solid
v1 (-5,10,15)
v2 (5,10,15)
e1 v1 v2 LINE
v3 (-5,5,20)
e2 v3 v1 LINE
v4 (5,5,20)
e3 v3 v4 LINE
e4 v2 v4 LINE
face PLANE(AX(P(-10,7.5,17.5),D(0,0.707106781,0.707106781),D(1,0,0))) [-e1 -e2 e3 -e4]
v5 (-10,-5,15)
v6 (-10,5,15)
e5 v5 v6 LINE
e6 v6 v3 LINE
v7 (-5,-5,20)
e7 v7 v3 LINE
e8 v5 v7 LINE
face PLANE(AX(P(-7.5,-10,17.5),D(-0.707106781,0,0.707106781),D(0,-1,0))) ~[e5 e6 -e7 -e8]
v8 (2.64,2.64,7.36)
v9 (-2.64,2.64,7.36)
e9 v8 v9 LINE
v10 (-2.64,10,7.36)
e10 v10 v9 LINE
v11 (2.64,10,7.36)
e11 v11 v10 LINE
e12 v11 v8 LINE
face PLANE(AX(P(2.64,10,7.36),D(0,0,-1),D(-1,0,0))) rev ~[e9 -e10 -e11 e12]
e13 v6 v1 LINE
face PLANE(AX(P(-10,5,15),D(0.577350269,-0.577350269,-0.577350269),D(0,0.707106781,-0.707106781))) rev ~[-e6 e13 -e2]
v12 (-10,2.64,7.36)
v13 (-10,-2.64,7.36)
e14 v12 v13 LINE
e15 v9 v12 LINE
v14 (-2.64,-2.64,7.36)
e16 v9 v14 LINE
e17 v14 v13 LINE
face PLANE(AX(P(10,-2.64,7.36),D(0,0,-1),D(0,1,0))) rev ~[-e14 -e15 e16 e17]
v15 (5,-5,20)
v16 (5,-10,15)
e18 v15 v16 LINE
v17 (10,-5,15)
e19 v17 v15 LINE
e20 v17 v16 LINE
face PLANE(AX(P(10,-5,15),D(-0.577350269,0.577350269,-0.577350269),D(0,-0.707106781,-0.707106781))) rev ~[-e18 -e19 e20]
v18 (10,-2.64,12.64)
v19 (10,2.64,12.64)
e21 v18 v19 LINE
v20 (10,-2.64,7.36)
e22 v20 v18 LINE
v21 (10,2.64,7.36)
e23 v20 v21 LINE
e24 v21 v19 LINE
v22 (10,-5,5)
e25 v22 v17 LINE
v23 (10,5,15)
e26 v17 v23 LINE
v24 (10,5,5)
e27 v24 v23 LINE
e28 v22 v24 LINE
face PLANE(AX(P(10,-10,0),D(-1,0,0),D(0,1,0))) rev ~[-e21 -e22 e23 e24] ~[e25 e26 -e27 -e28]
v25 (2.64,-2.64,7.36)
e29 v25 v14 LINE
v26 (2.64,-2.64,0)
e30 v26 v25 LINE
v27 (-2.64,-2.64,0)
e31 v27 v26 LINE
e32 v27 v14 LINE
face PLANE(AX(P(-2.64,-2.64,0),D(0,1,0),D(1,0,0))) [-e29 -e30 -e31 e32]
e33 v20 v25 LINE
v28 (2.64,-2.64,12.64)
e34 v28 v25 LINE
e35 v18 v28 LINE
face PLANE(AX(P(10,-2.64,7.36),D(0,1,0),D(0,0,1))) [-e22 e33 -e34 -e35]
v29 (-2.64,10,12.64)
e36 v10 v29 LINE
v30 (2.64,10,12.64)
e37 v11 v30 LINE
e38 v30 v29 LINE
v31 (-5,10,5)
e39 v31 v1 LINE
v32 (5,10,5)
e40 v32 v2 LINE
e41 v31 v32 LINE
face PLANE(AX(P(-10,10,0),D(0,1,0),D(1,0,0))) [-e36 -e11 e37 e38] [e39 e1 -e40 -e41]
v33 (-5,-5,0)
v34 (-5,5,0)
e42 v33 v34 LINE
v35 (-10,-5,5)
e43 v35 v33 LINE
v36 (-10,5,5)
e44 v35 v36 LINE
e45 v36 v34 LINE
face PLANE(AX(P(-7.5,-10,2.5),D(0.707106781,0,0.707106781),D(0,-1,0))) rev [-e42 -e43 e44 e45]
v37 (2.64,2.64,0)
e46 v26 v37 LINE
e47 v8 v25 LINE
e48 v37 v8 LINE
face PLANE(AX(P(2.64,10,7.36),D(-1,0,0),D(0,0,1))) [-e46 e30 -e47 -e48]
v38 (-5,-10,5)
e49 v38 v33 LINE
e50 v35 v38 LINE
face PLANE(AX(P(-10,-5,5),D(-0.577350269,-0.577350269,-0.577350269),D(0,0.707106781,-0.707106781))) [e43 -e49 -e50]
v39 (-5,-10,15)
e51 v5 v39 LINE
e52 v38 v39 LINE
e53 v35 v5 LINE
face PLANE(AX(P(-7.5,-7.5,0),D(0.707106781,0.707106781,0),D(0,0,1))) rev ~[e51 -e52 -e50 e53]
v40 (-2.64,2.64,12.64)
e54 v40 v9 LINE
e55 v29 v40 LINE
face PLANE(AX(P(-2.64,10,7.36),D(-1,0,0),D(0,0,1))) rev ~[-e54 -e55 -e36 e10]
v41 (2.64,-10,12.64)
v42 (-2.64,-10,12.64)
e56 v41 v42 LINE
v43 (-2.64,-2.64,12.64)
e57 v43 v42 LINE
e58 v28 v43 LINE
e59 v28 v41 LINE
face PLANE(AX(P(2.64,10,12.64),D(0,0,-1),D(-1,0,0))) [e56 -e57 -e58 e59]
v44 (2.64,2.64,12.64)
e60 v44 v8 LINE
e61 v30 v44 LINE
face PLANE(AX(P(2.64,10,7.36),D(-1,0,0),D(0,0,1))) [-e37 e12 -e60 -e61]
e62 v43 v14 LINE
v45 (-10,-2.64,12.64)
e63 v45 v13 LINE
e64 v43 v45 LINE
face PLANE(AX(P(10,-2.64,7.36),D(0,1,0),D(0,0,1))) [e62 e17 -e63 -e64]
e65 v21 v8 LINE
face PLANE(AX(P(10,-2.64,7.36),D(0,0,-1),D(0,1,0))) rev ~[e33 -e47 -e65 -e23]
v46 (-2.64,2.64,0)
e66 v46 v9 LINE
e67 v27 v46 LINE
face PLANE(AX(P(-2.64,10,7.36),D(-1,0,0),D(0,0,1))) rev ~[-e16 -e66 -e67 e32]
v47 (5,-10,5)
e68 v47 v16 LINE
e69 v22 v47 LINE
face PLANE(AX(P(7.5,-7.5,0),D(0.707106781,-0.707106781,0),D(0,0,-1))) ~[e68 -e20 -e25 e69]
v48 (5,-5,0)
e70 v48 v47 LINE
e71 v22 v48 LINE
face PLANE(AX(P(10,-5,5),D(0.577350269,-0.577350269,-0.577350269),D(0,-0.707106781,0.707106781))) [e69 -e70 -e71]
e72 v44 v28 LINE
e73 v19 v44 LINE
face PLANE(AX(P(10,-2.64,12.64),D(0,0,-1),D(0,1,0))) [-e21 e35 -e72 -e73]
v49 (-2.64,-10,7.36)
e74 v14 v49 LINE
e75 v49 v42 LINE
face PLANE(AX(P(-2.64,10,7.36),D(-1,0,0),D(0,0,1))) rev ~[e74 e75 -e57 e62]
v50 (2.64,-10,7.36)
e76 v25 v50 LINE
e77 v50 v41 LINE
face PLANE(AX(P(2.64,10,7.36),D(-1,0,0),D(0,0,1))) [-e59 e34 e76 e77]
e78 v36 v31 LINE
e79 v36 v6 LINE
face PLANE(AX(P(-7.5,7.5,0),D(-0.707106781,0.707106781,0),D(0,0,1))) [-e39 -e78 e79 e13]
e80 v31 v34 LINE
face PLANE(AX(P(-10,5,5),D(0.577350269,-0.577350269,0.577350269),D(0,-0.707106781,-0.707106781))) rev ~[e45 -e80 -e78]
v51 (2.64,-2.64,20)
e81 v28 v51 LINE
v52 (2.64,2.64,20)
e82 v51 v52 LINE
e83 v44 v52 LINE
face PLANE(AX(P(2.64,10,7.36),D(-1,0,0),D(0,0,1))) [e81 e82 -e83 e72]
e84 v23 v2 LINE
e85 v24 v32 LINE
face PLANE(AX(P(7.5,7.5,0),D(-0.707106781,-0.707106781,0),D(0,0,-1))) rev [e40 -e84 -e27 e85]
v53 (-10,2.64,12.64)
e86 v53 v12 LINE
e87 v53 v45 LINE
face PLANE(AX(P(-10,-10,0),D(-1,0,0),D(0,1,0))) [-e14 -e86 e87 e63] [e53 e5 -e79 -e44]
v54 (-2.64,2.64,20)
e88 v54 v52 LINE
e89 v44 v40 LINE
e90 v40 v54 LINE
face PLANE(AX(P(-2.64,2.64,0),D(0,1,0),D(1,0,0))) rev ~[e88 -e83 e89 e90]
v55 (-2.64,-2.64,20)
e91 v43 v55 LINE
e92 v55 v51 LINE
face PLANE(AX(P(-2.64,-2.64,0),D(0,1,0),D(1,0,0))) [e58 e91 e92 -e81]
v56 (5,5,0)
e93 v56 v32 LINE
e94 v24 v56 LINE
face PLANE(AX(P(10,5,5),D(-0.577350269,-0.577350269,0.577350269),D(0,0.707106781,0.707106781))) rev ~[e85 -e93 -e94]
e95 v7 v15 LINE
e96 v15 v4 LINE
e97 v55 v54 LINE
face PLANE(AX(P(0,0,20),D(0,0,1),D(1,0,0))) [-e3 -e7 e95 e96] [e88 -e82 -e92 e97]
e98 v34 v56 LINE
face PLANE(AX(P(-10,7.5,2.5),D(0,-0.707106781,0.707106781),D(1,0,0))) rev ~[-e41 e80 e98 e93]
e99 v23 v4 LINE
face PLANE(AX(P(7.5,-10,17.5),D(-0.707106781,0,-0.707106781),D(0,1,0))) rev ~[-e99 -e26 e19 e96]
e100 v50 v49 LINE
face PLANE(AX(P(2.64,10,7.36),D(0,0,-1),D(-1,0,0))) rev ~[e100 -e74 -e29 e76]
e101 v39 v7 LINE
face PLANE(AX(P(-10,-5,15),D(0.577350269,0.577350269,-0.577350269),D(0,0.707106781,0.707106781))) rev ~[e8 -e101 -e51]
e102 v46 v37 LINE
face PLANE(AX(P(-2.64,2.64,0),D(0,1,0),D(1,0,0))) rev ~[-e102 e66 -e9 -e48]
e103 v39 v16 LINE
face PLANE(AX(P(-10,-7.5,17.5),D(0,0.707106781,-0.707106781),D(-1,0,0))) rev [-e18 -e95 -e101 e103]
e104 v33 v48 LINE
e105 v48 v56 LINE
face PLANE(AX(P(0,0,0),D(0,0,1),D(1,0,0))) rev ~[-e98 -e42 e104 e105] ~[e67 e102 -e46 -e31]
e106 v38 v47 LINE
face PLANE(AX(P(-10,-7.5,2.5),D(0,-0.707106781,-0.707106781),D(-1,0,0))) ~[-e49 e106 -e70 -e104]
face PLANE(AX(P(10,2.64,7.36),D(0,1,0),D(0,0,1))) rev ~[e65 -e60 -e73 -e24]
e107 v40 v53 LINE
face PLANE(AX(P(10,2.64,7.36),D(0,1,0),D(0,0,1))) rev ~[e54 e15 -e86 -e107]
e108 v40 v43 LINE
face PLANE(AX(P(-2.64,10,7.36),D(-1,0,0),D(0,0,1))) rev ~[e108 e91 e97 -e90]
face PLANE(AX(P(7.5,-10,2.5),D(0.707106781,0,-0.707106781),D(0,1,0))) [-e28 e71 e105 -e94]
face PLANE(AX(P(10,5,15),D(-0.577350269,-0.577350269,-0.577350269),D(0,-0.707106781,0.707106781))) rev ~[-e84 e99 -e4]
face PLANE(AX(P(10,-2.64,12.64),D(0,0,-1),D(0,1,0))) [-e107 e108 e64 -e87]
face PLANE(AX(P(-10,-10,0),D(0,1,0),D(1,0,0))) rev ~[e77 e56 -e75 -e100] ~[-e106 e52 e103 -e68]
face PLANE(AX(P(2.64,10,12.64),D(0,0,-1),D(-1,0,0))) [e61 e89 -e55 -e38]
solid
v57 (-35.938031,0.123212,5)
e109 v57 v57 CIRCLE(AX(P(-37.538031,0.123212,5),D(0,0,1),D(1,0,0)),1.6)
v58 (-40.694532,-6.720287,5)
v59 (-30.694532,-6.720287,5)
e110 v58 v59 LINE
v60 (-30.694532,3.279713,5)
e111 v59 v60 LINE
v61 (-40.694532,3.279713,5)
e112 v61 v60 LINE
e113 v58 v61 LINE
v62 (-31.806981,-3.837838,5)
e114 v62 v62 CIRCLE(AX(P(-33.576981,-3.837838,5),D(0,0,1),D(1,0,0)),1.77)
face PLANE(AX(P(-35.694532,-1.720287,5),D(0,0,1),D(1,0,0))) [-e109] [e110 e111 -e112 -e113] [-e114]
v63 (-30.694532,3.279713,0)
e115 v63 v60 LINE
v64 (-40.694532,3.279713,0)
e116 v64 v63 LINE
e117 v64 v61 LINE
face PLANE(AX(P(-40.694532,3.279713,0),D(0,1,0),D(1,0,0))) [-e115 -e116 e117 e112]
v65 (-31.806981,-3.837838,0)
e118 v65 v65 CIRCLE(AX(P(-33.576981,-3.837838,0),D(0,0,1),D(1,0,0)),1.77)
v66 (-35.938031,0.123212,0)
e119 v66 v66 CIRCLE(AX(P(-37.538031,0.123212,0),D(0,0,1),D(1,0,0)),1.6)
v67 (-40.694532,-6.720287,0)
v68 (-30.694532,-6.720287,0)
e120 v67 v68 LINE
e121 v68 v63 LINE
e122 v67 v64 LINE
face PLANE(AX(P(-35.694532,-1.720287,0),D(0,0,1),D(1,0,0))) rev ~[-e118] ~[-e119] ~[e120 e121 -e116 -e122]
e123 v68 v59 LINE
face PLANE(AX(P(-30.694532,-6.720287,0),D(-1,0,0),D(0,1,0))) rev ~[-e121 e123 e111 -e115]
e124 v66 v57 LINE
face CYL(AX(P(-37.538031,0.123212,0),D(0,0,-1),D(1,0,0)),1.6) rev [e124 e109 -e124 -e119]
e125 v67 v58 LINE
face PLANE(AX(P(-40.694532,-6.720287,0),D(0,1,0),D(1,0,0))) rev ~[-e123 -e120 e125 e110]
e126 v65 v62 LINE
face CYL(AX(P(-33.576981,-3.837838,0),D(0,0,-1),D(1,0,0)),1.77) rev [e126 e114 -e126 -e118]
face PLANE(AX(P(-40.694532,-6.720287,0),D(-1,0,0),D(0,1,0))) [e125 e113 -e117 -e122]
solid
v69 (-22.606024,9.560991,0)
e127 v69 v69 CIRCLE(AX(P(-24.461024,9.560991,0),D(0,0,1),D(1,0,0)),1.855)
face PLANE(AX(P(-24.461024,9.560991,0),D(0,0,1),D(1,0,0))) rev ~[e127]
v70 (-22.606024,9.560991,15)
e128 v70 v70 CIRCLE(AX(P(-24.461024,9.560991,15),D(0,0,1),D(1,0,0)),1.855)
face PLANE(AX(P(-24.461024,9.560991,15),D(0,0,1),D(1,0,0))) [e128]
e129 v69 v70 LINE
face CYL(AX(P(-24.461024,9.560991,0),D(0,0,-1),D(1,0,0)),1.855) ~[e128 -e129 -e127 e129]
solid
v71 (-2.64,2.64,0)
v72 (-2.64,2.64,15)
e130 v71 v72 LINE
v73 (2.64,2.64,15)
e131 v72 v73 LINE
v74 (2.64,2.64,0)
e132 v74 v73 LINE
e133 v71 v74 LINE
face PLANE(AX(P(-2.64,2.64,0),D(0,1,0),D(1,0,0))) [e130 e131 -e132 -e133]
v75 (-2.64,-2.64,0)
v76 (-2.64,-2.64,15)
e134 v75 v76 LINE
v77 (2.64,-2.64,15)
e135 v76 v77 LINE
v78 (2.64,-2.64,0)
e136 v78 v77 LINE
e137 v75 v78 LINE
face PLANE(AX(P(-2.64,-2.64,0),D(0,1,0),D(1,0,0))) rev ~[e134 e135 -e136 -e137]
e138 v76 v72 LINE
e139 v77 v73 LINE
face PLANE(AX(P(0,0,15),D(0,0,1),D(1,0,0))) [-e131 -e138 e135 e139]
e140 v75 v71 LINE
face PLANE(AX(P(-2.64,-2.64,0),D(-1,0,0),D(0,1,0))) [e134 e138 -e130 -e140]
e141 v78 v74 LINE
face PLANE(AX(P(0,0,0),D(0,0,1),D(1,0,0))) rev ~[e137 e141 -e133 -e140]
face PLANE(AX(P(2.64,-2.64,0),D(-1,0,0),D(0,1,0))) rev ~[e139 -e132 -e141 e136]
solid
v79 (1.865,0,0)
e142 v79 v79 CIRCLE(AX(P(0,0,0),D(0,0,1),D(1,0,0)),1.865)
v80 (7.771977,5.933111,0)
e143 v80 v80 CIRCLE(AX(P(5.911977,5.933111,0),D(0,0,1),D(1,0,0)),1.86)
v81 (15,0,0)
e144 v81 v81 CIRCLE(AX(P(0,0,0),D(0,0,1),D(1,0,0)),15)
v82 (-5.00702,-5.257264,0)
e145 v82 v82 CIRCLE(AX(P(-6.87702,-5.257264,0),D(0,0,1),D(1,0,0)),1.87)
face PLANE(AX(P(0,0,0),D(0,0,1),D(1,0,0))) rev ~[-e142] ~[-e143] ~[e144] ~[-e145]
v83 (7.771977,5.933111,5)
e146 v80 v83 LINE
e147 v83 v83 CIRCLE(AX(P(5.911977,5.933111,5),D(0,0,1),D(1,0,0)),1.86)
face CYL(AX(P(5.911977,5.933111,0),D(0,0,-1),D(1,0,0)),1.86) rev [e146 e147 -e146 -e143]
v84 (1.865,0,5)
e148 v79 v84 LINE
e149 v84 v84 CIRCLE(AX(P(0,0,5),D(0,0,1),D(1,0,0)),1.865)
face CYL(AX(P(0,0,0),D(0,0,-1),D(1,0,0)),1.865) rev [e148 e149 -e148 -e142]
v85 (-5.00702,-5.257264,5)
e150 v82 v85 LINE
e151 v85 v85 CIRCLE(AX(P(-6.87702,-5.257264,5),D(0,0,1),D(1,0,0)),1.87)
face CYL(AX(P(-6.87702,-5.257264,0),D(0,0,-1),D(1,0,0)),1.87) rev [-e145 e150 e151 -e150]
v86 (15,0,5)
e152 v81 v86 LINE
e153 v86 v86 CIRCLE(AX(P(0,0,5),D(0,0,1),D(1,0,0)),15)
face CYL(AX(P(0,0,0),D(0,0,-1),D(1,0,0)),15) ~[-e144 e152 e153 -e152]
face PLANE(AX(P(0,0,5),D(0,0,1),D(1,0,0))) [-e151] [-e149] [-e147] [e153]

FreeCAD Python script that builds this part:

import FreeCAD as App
import Part
import Sketcher


def edges_at(feature, points):
    """Names of the edges that pass closest to the given points."""
    edges = feature.Shape.Edges
    near = lambda p: min(range(len(edges)), key=lambda i: edges[i].distToShape(Part.Vertex(*p))[0])
    return sorted({f"Edge{near(p) + 1}" for p in points})


def add_polygon(sketch, points):
    """Adds a closed chain of lines whose ends are joined by coincident constraints."""
    first, n = sketch.GeometryCount, len(points)
    for a, b in zip(points, points[1:] + points[:1]):
        sketch.addGeometry(Part.LineSegment(App.Vector(*a, 0), App.Vector(*b, 0)), False)
    for i in range(n):
        sketch.addConstraint(Sketcher.Constraint("Coincident", first + i, 2, first + (i + 1) % n, 1))

doc = App.newDocument("Part")
body = doc.addObject("PartDesign::Body", "Body")

# Sketch on XY plane
sketch1 = doc.addObject("Sketcher::SketchObject", "Sketch")
body.addObject(sketch1)
sketch1.AttachmentSupport = (doc.XY_Plane, [""])
sketch1.MapMode = "FlatFace"
sketch1.addGeometry(Part.Circle(App.Vector(0, 0, 0), App.Vector(0, 0, 1), 15), False)
sketch1.addGeometry(Part.Circle(App.Vector(-6.87702, -5.257264, 0), App.Vector(0, 0, 1), 1.87), False)
sketch1.addGeometry(Part.Circle(App.Vector(0, 0, 0), App.Vector(0, 0, 1), 1.865), False)
sketch1.addGeometry(Part.Circle(App.Vector(5.911977, 5.933111, 0), App.Vector(0, 0, 1), 1.86), False)
sketch1.addConstraint(Sketcher.Constraint("Coincident", 0, 3, -1, 1))
sketch1.addConstraint(Sketcher.Constraint("Coincident", 2, 3, -1, 1))
sketch1.addConstraint(Sketcher.Constraint("Diameter", 0, 30.0))
sketch1.addConstraint(Sketcher.Constraint("Diameter", 1, 3.74))
sketch1.addConstraint(Sketcher.Constraint("Diameter", 2, 3.73))
sketch1.addConstraint(Sketcher.Constraint("Diameter", 3, 3.72))
sketch1.addConstraint(Sketcher.Constraint("DistanceX", 1, 3, -1, 1, 6.87702))
sketch1.addConstraint(Sketcher.Constraint("DistanceY", -1, 1, 3, 3, 5.933111))
sketch1.addConstraint(Sketcher.Constraint("DistanceY", 1, 3, -1, 1, 5.257264))
sketch1.addConstraint(Sketcher.Constraint("DistanceX", -1, 1, 3, 3, 5.911977))
pad1 = doc.addObject("PartDesign::Pad", "Pad")
body.addObject(pad1)
pad1.Profile = sketch1
pad1.Length = 5
body2 = doc.addObject("PartDesign::Body", "Body001")

# Sketch on XY plane
sketch2 = doc.addObject("Sketcher::SketchObject", "Sketch001")
body2.addObject(sketch2)
sketch2.AttachmentSupport = (doc.getObject("XY_Plane001"), [""])
sketch2.MapMode = "FlatFace"
sketch2.addGeometry(Part.Circle(App.Vector(-24.461024, 9.560991, 0), App.Vector(0, 0, 1), 1.855), False)
sketch2.addConstraint(Sketcher.Constraint("Diameter", 0, 3.71))
sketch2.addConstraint(Sketcher.Constraint("DistanceY", -1, 1, 0, 3, 9.560991))
sketch2.addConstraint(Sketcher.Constraint("DistanceX", 0, 3, -1, 1, 24.461024))
pad2 = doc.addObject("PartDesign::Pad", "Pad001")
body2.addObject(pad2)
pad2.Profile = sketch2
pad2.Length = 15
body3 = doc.addObject("PartDesign::Body", "Body002")

# Sketch on XY plane
sketch3 = doc.addObject("Sketcher::SketchObject", "Sketch002")
body3.addObject(sketch3)
sketch3.AttachmentSupport = (doc.getObject("XY_Plane002"), [""])
sketch3.MapMode = "FlatFace"
add_polygon(sketch3, [(-40.694532, 3.279713), (-40.694532, -6.720287), (-30.694532, -6.720287), (-30.694532, 3.279713)])  # lines 0-3
sketch3.addGeometry(Part.Circle(App.Vector(-33.576981, -3.837838, 0), App.Vector(0, 0, 1), 1.77), False)  # 4
sketch3.addGeometry(Part.Circle(App.Vector(-37.538031, 0.123212, 0), App.Vector(0, 0, 1), 1.6), False)  # 5
sketch3.addConstraint(Sketcher.Constraint("Vertical", 0))
sketch3.addConstraint(Sketcher.Constraint("Horizontal", 1))
sketch3.addConstraint(Sketcher.Constraint("Vertical", 2))
sketch3.addConstraint(Sketcher.Constraint("Horizontal", 3))
sketch3.addConstraint(Sketcher.Constraint("Equal", 3, 0))
sketch3.addConstraint(Sketcher.Constraint("Diameter", 5, 3.2))
sketch3.addConstraint(Sketcher.Constraint("Diameter", 4, 3.54))
sketch3.addConstraint(Sketcher.Constraint("DistanceX", 1, 1, 1, 2, 10.0))
sketch3.addConstraint(Sketcher.Constraint("DistanceX", 0, 2, 5, 3, 3.156501))
sketch3.addConstraint(Sketcher.Constraint("DistanceY", 0, 2, 5, 3, 6.843499))
sketch3.addConstraint(Sketcher.Constraint("DistanceX", 4, 3, -1, 1, 33.576981))
sketch3.addConstraint(Sketcher.Constraint("DistanceY", 4, 3, -1, 1, 3.837838))
sketch3.addConstraint(Sketcher.Constraint("DistanceX", 5, 3, -1, 1, 37.538031))
sketch3.addConstraint(Sketcher.Constraint("DistanceY", 4, 3, 5, 3, 3.96105))
pad3 = doc.addObject("PartDesign::Pad", "Pad002")
body3.addObject(pad3)
pad3.Profile = sketch3
pad3.Length = 5
body4 = doc.addObject("PartDesign::Body", "Body003")

# Sketch on XY plane
sketch4 = doc.addObject("Sketcher::SketchObject", "Sketch003")
body4.addObject(sketch4)
sketch4.AttachmentSupport = (doc.getObject("XY_Plane003"), [""])
sketch4.MapMode = "FlatFace"
add_polygon(sketch4, [(-10, 10), (-10, -10), (10, -10), (10, 10)])  # lines 0-3
add_polygon(sketch4, [(2.64, -2.64), (-2.64, -2.64), (-2.64, 2.64), (2.64, 2.64)])  # lines 4-7
sketch4.addConstraint(Sketcher.Constraint("Vertical", 0))
sketch4.addConstraint(Sketcher.Constraint("Horizontal", 1))
sketch4.addConstraint(Sketcher.Constraint("Vertical", 2))
sketch4.addConstraint(Sketcher.Constraint("Horizontal", 3))
sketch4.addConstraint(Sketcher.Constraint("Horizontal", 4))
sketch4.addConstraint(Sketcher.Constraint("Vertical", 5))
sketch4.addConstraint(Sketcher.Constraint("Horizontal", 6))
sketch4.addConstraint(Sketcher.Constraint("Vertical", 7))
sketch4.addConstraint(Sketcher.Constraint("Symmetric", 0, 2, 2, 2, -1, 1))
sketch4.addConstraint(Sketcher.Constraint("Symmetric", 4, 2, 6, 2, -1, 1))
sketch4.addConstraint(Sketcher.Constraint("Equal", 3, 0))
sketch4.addConstraint(Sketcher.Constraint("Equal", 6, 5))
sketch4.addConstraint(Sketcher.Constraint("DistanceX", 1, 1, 1, 2, 20.0))
sketch4.addConstraint(Sketcher.Constraint("DistanceX", 4, 2, 4, 1, 5.28))
pad4 = doc.addObject("PartDesign::Pad", "Pad003")
body4.addObject(pad4)
pad4.Profile = sketch4
pad4.Length = 20

# Sketch on XZ plane
sketch5 = doc.addObject("Sketcher::SketchObject", "Sketch004")
body4.addObject(sketch5)
sketch5.AttachmentSupport = (doc.getObject("XZ_Plane003"), [""])
sketch5.MapMode = "FlatFace"
sketch5.AttachmentOffset = App.Placement(App.Vector(0, 0, -10), App.Rotation())
add_polygon(sketch5, [(2.64, 12.64), (2.64, 7.36), (-2.64, 7.36), (-2.64, 12.64)])  # lines 0-3
sketch5.addConstraint(Sketcher.Constraint("Vertical", 0))
sketch5.addConstraint(Sketcher.Constraint("Horizontal", 1))
sketch5.addConstraint(Sketcher.Constraint("Vertical", 2))
sketch5.addConstraint(Sketcher.Constraint("Horizontal", 3))
sketch5.addConstraint(Sketcher.Constraint("Equal", 3, 0))
sketch5.addConstraint(Sketcher.Constraint("DistanceX", 1, 2, 1, 1, 5.28))
sketch5.addConstraint(Sketcher.Constraint("DistanceX", -1, 1, 0, 2, 2.64))
sketch5.addConstraint(Sketcher.Constraint("DistanceY", -1, 1, 0, 2, 7.36))
pocket1 = doc.addObject("PartDesign::Pocket", "Pocket")
body4.addObject(pocket1)
pocket1.Profile = sketch5
pocket1.Length = 25
pocket1.Reversed = True

# Sketch on YZ plane
sketch6 = doc.addObject("Sketcher::SketchObject", "Sketch005")
body4.addObject(sketch6)
sketch6.AttachmentSupport = (doc.getObject("YZ_Plane003"), [""])
sketch6.MapMode = "FlatFace"
sketch6.AttachmentOffset = App.Placement(App.Vector(0, 0, 10), App.Rotation())
add_polygon(sketch6, [(-2.64, 12.64), (-2.64, 7.36), (2.64, 7.36), (2.64, 12.64)])  # lines 0-3
sketch6.addConstraint(Sketcher.Constraint("Vertical", 0))
sketch6.addConstraint(Sketcher.Constraint("Horizontal", 1))
sketch6.addConstraint(Sketcher.Constraint("Vertical", 2))
sketch6.addConstraint(Sketcher.Constraint("Horizontal", 3))
sketch6.addConstraint(Sketcher.Constraint("Equal", 3, 0))
sketch6.addConstraint(Sketcher.Constraint("DistanceX", 1, 1, 1, 2, 5.28))
sketch6.addConstraint(Sketcher.Constraint("DistanceX", 0, 2, -1, 1, 2.64))
sketch6.addConstraint(Sketcher.Constraint("DistanceY", -1, 1, 0, 2, 7.36))
pocket2 = doc.addObject("PartDesign::Pocket", "Pocket001")
body4.addObject(pocket2)
pocket2.Profile = sketch6
pocket2.Length = 25
doc.recompute()

chamfer = doc.addObject("PartDesign::Chamfer", "Chamfer")
body4.addObject(chamfer)
chamfer.Base = (pocket2, edges_at(pocket2, [
    (0, 10, 0),
    (0, 10, 20),
    (0, -10, 20),
    (0, -10, 0),
    (10, 0, 0),
    (10, 10, 10),
    (10, 0, 20),
    (10, -10, 10),
    (-10, -10, 10),
    (-10, 0, 20),
    (-10, 10, 10),
    (-10, 0, 0),
]))
chamfer.Size = 5
body5 = doc.addObject("PartDesign::Body", "Body004")

# Sketch on XY plane
sketch7 = doc.addObject("Sketcher::SketchObject", "Sketch006")
body5.addObject(sketch7)
sketch7.AttachmentSupport = (doc.getObject("XY_Plane004"), [""])
sketch7.MapMode = "FlatFace"
add_polygon(sketch7, [(-2.64, 2.64), (-2.64, -2.64), (2.64, -2.64), (2.64, 2.64)])  # lines 0-3
sketch7.addConstraint(Sketcher.Constraint("Vertical", 0))
sketch7.addConstraint(Sketcher.Constraint("Horizontal", 1))
sketch7.addConstraint(Sketcher.Constraint("Vertical", 2))
sketch7.addConstraint(Sketcher.Constraint("Horizontal", 3))
sketch7.addConstraint(Sketcher.Constraint("Symmetric", 0, 2, 2, 2, -1, 1))
sketch7.addConstraint(Sketcher.Constraint("Equal", 3, 0))
sketch7.addConstraint(Sketcher.Constraint("DistanceX", 1, 1, 1, 2, 5.28))
pad5 = doc.addObject("PartDesign::Pad", "Pad004")
body5.addObject(pad5)
pad5.Profile = sketch7
pad5.Length = 15

doc.recompute()
